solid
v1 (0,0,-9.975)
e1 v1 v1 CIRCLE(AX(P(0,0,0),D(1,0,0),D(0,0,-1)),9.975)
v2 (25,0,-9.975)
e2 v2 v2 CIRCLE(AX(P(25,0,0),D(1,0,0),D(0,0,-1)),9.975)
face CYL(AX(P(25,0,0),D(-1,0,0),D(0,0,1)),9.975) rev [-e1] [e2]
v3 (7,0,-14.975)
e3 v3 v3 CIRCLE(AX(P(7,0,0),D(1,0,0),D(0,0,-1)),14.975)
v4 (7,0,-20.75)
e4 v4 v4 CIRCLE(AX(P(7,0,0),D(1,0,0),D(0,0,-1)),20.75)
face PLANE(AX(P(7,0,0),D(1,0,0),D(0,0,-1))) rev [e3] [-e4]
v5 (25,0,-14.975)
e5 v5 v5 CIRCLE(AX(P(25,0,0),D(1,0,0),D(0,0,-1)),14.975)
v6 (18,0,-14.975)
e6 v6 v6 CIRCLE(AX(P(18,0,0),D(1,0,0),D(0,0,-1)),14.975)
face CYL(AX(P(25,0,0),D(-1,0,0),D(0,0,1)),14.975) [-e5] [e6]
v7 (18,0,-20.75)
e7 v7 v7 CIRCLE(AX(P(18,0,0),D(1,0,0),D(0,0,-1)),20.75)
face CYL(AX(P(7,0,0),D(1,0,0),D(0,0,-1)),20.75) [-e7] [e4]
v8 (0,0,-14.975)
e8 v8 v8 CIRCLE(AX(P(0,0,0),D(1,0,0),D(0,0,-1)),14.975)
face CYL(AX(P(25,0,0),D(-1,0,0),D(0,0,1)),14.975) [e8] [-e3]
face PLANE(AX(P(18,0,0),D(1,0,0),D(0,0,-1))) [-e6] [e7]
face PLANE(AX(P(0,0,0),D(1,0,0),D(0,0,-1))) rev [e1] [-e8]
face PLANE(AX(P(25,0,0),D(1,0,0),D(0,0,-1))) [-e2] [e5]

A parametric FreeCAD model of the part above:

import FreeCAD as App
import Part
import Sketcher

V = App.Vector
Q = App.Units.Quantity

doc = App.newDocument("Part")
body = doc.addObject("PartDesign::Body", "Body")

sketch1 = doc.addObject("Sketcher::SketchObject", "Sketch")
body.addObject(sketch1)
sketch1.AttachmentSupport = (doc.YZ_Plane, [""])
sketch1.MapMode = "FlatFace"
sketch1.addGeometry([
    Part.Circle(V(0, 0, 0), V(0, 0, 1), 15),
    Part.Circle(V(0, 0, 0), V(0, 0, 1), 10),
], False)
sketch1.addConstraint([
    Sketcher.Constraint("Coincident", 0, 3, -1, 1),
    Sketcher.Constraint("Coincident", 1, 3, -1, 1),
    Sketcher.Constraint("Diameter", 0, Q("29.95 mm")),
    Sketcher.Constraint("Diameter", 1, Q("19.95 mm")),
])
pad1 = doc.addObject("PartDesign::Pad", "Pad")
body.addObject(pad1)
pad1.Profile = sketch1
pad1.Length = 25

sketch2 = doc.addObject("Sketcher::SketchObject", "Sketch001")
body.addObject(sketch2)
sketch2.AttachmentSupport = (doc.YZ_Plane, [""])
sketch2.MapMode = "FlatFace"
sketch2.AttachmentOffset = App.Placement(V(0, 0, 12.5), App.Rotation())
sketch2.addGeometry([
    Part.Circle(V(0, 0, 0), V(0, 0, 1), 21),
    Part.Circle(V(0, 0, 0), V(0, 0, 1), 10),
], False)
sketch2.addConstraint([
    Sketcher.Constraint("Coincident", 0, 3, -1, 1),
    Sketcher.Constraint("Coincident", 1, 3, -1, 1),
    Sketcher.Constraint("Diameter", 0, Q("41.5 mm")),
    Sketcher.Constraint("Diameter", 1, Q("19.95 mm")),
])
pad2 = doc.addObject("PartDesign::Pad", "Pad001")
body.addObject(pad2)
pad2.Profile = sketch2
pad2.Type = "TwoLengths"
pad2.Length = 5.5
pad2.Length2 = 5.5

doc.recompute()
